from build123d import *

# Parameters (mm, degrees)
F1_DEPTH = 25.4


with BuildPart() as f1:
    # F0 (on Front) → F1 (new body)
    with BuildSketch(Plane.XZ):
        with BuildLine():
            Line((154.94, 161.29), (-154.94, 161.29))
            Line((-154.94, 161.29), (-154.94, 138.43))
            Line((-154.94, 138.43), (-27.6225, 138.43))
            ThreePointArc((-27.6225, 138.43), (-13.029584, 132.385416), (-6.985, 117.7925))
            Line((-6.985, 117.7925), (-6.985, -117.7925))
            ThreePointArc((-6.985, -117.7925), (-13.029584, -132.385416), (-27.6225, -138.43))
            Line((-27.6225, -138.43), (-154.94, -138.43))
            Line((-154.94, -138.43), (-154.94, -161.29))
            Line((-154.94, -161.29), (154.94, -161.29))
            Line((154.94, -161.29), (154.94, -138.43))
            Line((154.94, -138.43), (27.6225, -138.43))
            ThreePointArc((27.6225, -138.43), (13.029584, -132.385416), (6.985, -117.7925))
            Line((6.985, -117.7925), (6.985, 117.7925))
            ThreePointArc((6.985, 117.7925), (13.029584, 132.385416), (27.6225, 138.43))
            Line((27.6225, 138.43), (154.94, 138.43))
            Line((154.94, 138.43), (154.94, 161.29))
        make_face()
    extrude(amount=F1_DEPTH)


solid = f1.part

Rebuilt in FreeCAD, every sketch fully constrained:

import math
import FreeCAD as App
import Part
import Sketcher
from FreeCAD import Vector
Q = App.Units.Quantity

doc = App.newDocument("Part")
body = doc.addObject("PartDesign::Body", "Body")

sketch1 = body.newObject("Sketcher::SketchObject", "Sketch")
sketch1.AttachmentSupport = (doc.getObject("XZ_Plane"), [""])
sketch1.MapMode = "FlatFace"
sketch1.addGeometry(Part.LineSegment(Vector(154.94, 161.29, 0), Vector(-154.94, 161.29, 0)), False)
sketch1.addGeometry(Part.LineSegment(Vector(-154.94, 161.29, 0), Vector(-154.94, 138.43, 0)), False)
sketch1.addGeometry(Part.LineSegment(Vector(-154.94, 138.43, 0), Vector(-27.6225, 138.43, 0)), False)
sketch1.addGeometry(Part.ArcOfCircle(Part.Circle(Vector(-27.622501, 117.792499, 0), Vector(0, 0, 1), 20.637501), math.radians(0.000002), math.radians(89.999998)), False)
sketch1.addGeometry(Part.LineSegment(Vector(-6.985, 117.7925, 0), Vector(-6.985, -117.7925, 0)), False)
sketch1.addGeometry(Part.ArcOfCircle(Part.Circle(Vector(-27.622501, -117.792499, 0), Vector(0, 0, 1), 20.637501), math.radians(-89.999998), math.radians(-0.000002)), False)
sketch1.addGeometry(Part.LineSegment(Vector(-27.6225, -138.43, 0), Vector(-154.94, -138.43, 0)), False)
sketch1.addGeometry(Part.LineSegment(Vector(-154.94, -138.43, 0), Vector(-154.94, -161.29, 0)), False)
sketch1.addGeometry(Part.LineSegment(Vector(-154.94, -161.29, 0), Vector(154.94, -161.29, 0)), False)
sketch1.addGeometry(Part.LineSegment(Vector(154.94, -161.29, 0), Vector(154.94, -138.43, 0)), False)
sketch1.addGeometry(Part.LineSegment(Vector(154.94, -138.43, 0), Vector(27.6225, -138.43, 0)), False)
sketch1.addGeometry(Part.ArcOfCircle(Part.Circle(Vector(27.622501, -117.792499, 0), Vector(0, 0, 1), 20.637501), math.radians(-179.999998), math.radians(-90.000002)), False)
sketch1.addGeometry(Part.LineSegment(Vector(6.985, -117.7925, 0), Vector(6.985, 117.7925, 0)), False)
sketch1.addGeometry(Part.ArcOfCircle(Part.Circle(Vector(27.622501, 117.792499, 0), Vector(0, 0, 1), 20.637501), math.radians(90.000002), math.radians(179.999998)), False)
sketch1.addGeometry(Part.LineSegment(Vector(27.6225, 138.43, 0), Vector(154.94, 138.43, 0)), False)
sketch1.addGeometry(Part.LineSegment(Vector(154.94, 138.43, 0), Vector(154.94, 161.29, 0)), False)
sketch1.addConstraint(Sketcher.Constraint("Coincident", 0, 2, 1, 1))
sketch1.addConstraint(Sketcher.Constraint("Coincident", 1, 2, 2, 1))
sketch1.addConstraint(Sketcher.Constraint("Tangent", 2, 2, 3, 2))
sketch1.addConstraint(Sketcher.Constraint("Tangent", 3, 1, 4, 1))
sketch1.addConstraint(Sketcher.Constraint("Tangent", 4, 2, 5, 2))
sketch1.addConstraint(Sketcher.Constraint("Tangent", 5, 1, 6, 1))
sketch1.addConstraint(Sketcher.Constraint("Coincident", 6, 2, 7, 1))
sketch1.addConstraint(Sketcher.Constraint("Coincident", 7, 2, 8, 1))
sketch1.addConstraint(Sketcher.Constraint("Coincident", 8, 2, 9, 1))
sketch1.addConstraint(Sketcher.Constraint("Coincident", 9, 2, 10, 1))
sketch1.addConstraint(Sketcher.Constraint("Tangent", 10, 2, 11, 2))
sketch1.addConstraint(Sketcher.Constraint("Tangent", 11, 1, 12, 1))
sketch1.addConstraint(Sketcher.Constraint("Tangent", 12, 2, 13, 2))
sketch1.addConstraint(Sketcher.Constraint("Tangent", 13, 1, 14, 1))
sketch1.addConstraint(Sketcher.Constraint("Coincident", 14, 2, 15, 1))
sketch1.addConstraint(Sketcher.Constraint("Coincident", 15, 2, 0, 1))
sketch1.addConstraint(Sketcher.Constraint("Horizontal", 0))
sketch1.addConstraint(Sketcher.Constraint("Vertical", 1))
sketch1.addConstraint(Sketcher.Constraint("Horizontal", 2))
sketch1.addConstraint(Sketcher.Constraint("Vertical", 4))
sketch1.addConstraint(Sketcher.Constraint("Horizontal", 6))
sketch1.addConstraint(Sketcher.Constraint("Vertical", 7))
sketch1.addConstraint(Sketcher.Constraint("Horizontal", 8))
sketch1.addConstraint(Sketcher.Constraint("Vertical", 9))
sketch1.addConstraint(Sketcher.Constraint("Horizontal", 10))
sketch1.addConstraint(Sketcher.Constraint("Vertical", 12))
sketch1.addConstraint(Sketcher.Constraint("Horizontal", 14))
sketch1.addConstraint(Sketcher.Constraint("Vertical", 15))
sketch1.addConstraint(Sketcher.Constraint("Equal", 3, 5))
sketch1.addConstraint(Sketcher.Constraint("Equal", 5, 11))
sketch1.addConstraint(Sketcher.Constraint("Equal", 11, 13))
sketch1.addConstraint(Sketcher.Constraint("Symmetric", 3, 3, 11, 3, -1, 1))
sketch1.addConstraint(Sketcher.Constraint("Symmetric", 0, 2, 8, 2, -1, 1))
sketch1.addConstraint(Sketcher.Constraint("Symmetric", 6, 2, 14, 2, -1, 1))
sketch1.addConstraint(Sketcher.Constraint("Symmetric", 6, 2, 9, 2, -2))
sketch1.addConstraint(Sketcher.Constraint("DistanceX", 0, 2, 0, 1, Q("12.2 in")))
sketch1.addConstraint(Sketcher.Constraint("DistanceY", 1, 2, 1, 1, Q("0.9 in")))
sketch1.addConstraint(Sketcher.Constraint("Radius", 3, Q("0.8125 in")))
sketch1.addConstraint(Sketcher.Constraint("DistanceY", 6, 2, 1, 2, Q("10.9 in")))
sketch1.addConstraint(Sketcher.Constraint("DistanceX", 4, 2, 11, 1, Q("0.55 in")))
pad1 = body.newObject("PartDesign::Pad", "Pad")
pad1.Profile = sketch1
pad1.Length = Q("1 in")

doc.recompute()
